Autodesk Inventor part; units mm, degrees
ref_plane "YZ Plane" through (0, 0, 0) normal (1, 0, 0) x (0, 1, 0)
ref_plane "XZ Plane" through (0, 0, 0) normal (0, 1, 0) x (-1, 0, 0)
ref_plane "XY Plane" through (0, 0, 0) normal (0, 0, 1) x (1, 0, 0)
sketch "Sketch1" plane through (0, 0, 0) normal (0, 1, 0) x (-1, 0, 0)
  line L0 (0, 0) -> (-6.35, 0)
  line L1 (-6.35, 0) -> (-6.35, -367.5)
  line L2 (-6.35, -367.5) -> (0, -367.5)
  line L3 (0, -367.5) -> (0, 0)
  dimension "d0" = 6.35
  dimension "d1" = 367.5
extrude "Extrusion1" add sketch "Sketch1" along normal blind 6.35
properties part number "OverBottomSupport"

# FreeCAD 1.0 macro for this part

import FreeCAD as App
import Part
import Sketcher

V = App.Vector
Q = App.Units.Quantity


def add_polygon(sketch, points):
    """Adds a closed chain of lines whose ends are joined by coincident constraints."""
    first, n = sketch.GeometryCount, len(points)
    for a, b in zip(points, points[1:] + points[:1]):
        sketch.addGeometry(Part.LineSegment(App.Vector(*a, 0), App.Vector(*b, 0)), False)
    for i in range(n):
        sketch.addConstraint(Sketcher.Constraint("Coincident", first + i, 2, first + (i + 1) % n, 1))

doc = App.newDocument("Part")
params = doc.addObject("Spreadsheet::Sheet", "Params")
for row, (alias, value) in enumerate([
    ("sketch1_width", "0.25 in"),
    ("pad1_length", "0.25 in"),
], start=1):
    params.set(f"A{row}", alias)
    params.set(f"B{row}", "=" + value)
    params.setAlias(f"B{row}", alias)

body = doc.addObject("PartDesign::Body", "Body")

sketch1 = body.newObject("Sketcher::SketchObject", "Sketch")
sketch1.AttachmentSupport = (doc.getObject("XZ_Plane"), [""])
sketch1.MapMode = "FlatFace"
add_polygon(sketch1, [(0, -368), (0, 0), (6, 0), (6, -368)])
sketch1.addConstraint(Sketcher.Constraint("Vertical", 0))
sketch1.addConstraint(Sketcher.Constraint("Horizontal", 1))
sketch1.addConstraint(Sketcher.Constraint("Vertical", 2))
sketch1.addConstraint(Sketcher.Constraint("Horizontal", 3))
sketch1.addConstraint(Sketcher.Constraint("Coincident", 0, 2, -1, 1))
sketch1.addConstraint(Sketcher.Constraint("DistanceX", 1, 1, 1, 2, Q("0.25 in")))
sketch1.addConstraint(Sketcher.Constraint("DistanceY", 0, 1, 0, 2, Q("14.4685 in")))
sketch1.setExpression("Constraints[9]", "Params.sketch1_width")
pad1 = body.newObject("PartDesign::Pad", "Pad")
pad1.Profile = sketch1
pad1.setExpression("Length", "Params.pad1_length")
pad1.Reversed = True

doc.recompute()
